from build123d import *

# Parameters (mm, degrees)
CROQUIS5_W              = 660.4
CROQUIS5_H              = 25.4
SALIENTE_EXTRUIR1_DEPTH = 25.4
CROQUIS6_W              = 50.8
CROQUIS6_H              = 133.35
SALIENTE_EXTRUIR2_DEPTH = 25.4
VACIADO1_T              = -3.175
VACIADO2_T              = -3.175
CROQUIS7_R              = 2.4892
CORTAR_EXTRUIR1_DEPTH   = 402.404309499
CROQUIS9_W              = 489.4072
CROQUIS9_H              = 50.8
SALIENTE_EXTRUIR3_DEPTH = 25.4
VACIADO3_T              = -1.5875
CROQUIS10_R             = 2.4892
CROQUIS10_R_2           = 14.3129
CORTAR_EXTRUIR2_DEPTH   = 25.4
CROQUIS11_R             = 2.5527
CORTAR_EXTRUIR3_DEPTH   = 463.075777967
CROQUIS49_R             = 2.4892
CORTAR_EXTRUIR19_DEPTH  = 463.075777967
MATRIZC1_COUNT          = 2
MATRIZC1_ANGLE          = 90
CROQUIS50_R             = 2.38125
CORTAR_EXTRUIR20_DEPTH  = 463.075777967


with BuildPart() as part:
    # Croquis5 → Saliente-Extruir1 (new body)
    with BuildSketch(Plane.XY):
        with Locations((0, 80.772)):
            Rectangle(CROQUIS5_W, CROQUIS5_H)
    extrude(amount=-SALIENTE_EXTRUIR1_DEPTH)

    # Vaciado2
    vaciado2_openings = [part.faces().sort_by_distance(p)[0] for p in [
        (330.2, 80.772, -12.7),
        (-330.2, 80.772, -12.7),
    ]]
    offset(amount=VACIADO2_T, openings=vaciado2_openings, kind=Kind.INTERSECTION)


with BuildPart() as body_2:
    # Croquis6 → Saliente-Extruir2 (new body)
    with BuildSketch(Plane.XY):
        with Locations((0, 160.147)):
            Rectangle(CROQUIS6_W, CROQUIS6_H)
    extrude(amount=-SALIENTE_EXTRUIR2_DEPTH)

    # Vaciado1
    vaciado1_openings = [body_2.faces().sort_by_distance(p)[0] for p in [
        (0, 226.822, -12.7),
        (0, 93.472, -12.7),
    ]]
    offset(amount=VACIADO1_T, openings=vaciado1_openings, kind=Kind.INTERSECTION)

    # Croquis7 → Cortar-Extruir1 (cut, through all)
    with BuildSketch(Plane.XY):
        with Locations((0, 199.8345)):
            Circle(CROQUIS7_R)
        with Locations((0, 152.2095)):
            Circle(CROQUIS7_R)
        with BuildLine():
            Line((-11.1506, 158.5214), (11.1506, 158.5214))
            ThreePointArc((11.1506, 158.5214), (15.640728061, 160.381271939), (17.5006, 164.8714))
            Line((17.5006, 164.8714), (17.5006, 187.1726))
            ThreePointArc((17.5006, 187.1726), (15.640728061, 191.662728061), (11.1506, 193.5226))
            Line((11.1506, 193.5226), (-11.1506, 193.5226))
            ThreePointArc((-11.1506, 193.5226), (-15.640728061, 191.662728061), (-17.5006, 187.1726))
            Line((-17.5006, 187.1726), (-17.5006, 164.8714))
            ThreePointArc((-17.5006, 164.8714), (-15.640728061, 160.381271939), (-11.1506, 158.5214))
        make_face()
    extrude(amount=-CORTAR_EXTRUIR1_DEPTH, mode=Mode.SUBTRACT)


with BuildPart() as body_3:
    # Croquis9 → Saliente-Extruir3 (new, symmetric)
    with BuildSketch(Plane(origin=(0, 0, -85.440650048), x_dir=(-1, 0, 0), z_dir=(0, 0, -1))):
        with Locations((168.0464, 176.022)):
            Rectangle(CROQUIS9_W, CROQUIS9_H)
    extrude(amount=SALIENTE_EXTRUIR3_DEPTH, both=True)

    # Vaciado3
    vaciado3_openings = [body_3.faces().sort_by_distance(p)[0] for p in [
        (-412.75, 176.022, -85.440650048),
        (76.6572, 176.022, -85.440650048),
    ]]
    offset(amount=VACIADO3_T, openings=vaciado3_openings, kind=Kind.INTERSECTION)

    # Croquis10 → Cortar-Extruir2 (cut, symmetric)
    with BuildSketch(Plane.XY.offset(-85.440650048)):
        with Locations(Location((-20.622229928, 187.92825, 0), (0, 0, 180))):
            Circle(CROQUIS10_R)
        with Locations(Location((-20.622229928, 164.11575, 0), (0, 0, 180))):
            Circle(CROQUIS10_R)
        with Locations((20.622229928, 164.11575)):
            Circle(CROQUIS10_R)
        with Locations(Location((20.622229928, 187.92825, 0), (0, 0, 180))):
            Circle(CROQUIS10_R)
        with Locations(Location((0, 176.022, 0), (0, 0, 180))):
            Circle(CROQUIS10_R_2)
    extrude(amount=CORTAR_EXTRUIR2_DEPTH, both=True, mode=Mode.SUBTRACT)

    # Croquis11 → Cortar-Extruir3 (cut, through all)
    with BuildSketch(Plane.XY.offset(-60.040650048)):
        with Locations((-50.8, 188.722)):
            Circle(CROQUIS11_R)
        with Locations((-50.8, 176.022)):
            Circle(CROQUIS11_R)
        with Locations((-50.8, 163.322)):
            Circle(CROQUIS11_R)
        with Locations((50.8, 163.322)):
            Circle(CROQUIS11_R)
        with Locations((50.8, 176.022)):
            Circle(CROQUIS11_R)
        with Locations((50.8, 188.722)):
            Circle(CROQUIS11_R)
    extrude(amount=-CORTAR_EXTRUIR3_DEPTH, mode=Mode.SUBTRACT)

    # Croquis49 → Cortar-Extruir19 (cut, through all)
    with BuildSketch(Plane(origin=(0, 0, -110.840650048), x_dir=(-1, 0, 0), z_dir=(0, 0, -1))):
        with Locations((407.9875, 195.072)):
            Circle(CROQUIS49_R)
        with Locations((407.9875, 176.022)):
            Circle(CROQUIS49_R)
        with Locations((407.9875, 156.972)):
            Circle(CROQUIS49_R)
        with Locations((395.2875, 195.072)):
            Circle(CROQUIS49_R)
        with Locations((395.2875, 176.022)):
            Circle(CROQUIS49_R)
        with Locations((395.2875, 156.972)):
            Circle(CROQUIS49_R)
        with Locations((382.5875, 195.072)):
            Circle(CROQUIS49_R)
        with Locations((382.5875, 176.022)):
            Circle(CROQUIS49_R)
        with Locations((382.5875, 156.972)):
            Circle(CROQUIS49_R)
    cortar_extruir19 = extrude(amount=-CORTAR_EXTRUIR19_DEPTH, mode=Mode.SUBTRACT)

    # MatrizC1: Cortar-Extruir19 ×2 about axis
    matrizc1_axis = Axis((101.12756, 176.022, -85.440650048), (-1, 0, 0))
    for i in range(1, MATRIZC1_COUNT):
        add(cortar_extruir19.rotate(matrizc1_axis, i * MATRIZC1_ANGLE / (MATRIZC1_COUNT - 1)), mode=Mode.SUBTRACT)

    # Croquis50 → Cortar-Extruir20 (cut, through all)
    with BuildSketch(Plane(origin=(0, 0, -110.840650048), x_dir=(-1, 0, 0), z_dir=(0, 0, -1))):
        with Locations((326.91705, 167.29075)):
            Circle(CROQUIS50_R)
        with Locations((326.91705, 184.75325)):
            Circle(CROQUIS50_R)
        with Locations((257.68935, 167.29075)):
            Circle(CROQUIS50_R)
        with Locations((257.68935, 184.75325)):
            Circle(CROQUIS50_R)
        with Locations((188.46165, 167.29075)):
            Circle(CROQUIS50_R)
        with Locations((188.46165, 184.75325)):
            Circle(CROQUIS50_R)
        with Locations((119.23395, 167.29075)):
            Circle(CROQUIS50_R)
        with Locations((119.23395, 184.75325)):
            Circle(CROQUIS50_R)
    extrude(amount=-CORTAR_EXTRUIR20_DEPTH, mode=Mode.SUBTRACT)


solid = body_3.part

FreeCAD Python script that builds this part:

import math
import FreeCAD as App
import Part
import Sketcher
from FreeCAD import Vector
Q = App.Units.Quantity


def faces_at(feature, points):
    """Names of the faces that lie closest to the given points."""
    faces = feature.Shape.Faces
    near = lambda p: min(range(len(faces)), key=lambda i: faces[i].distToShape(Part.Vertex(*p))[0])
    return sorted({f"Face{near(p) + 1}" for p in points})


def add_polygon(sketch, points):
    """Adds a closed chain of lines whose ends are joined by coincident constraints."""
    first, n = sketch.GeometryCount, len(points)
    for a, b in zip(points, points[1:] + points[:1]):
        sketch.addGeometry(Part.LineSegment(App.Vector(*a, 0), App.Vector(*b, 0)), False)
    for i in range(n):
        sketch.addConstraint(Sketcher.Constraint("Coincident", first + i, 2, first + (i + 1) % n, 1))

doc = App.newDocument("Part")
body = doc.addObject("PartDesign::Body", "Body")

sketch1 = doc.addObject("Sketcher::SketchObject", "Sketch")
body.addObject(sketch1)
sketch1.AttachmentSupport = (doc.XY_Plane, [""])
sketch1.MapMode = "FlatFace"
add_polygon(sketch1, [(-330.2, 93.472), (-330.2, 68.072), (330.2, 68.072), (330.2, 93.472)])
sketch1.addConstraint([
    Sketcher.Constraint("Vertical", 0),
    Sketcher.Constraint("Horizontal", 1),
    Sketcher.Constraint("Vertical", 2),
    Sketcher.Constraint("Horizontal", 3),
    Sketcher.Constraint("DistanceX", 1, 1, 1, 2, Q("26 in")),
    Sketcher.Constraint("DistanceY", 0, 2, 0, 1, Q("1 in")),
    Sketcher.Constraint("DistanceX", 0, 2, -1, 1, Q("13 in")),
    Sketcher.Constraint("DistanceY", -1, 1, 0, 2, Q("2.68 in")),
])
pad1 = doc.addObject("PartDesign::Pad", "Pad")
body.addObject(pad1)
pad1.Profile = sketch1
pad1.Length = Q("1 in")
pad1.Reversed = True
doc.recompute()

thickness = doc.addObject("PartDesign::Thickness", "Thickness")
body.addObject(thickness)
thickness.Base = (pad1, faces_at(pad1, [(330.2, 80.772, -12.7), (-330.2, 80.772, -12.7)]))
thickness.Value = Q("0.125 in")
thickness.Reversed = True
thickness.Join = "Intersection"
body2 = doc.addObject("PartDesign::Body", "Body001")

sketch2 = doc.addObject("Sketcher::SketchObject", "Sketch001")
body2.addObject(sketch2)
sketch2.AttachmentSupport = (doc.getObject("XY_Plane001"), [""])
sketch2.MapMode = "FlatFace"
add_polygon(sketch2, [(-25.4, 226.822), (-25.4, 93.472), (25.4, 93.472), (25.4, 226.822)])
sketch2.addConstraint([
    Sketcher.Constraint("Vertical", 0),
    Sketcher.Constraint("Horizontal", 1),
    Sketcher.Constraint("Vertical", 2),
    Sketcher.Constraint("Horizontal", 3),
    Sketcher.Constraint("DistanceX", 1, 1, 1, 2, Q("2 in")),
    Sketcher.Constraint("DistanceX", 0, 2, -1, 1, Q("1 in")),
    Sketcher.Constraint("DistanceY", 0, 2, 0, 1, Q("5.25 in")),
    Sketcher.Constraint("DistanceY", -1, 1, 0, 2, Q("3.68 in")),
])
pad2 = doc.addObject("PartDesign::Pad", "Pad001")
body2.addObject(pad2)
pad2.Profile = sketch2
pad2.Length = Q("1 in")
pad2.Reversed = True
doc.recompute()

thickness2 = doc.addObject("PartDesign::Thickness", "Thickness001")
body2.addObject(thickness2)
thickness2.Base = (pad2, faces_at(pad2, [(0, 226.822, -12.7), (0, 93.472, -12.7)]))
thickness2.Value = Q("0.125 in")
thickness2.Reversed = True
thickness2.Join = "Intersection"

sketch3 = doc.addObject("Sketcher::SketchObject", "Sketch002")
body2.addObject(sketch3)
sketch3.AttachmentSupport = (doc.getObject("XY_Plane001"), [""])
sketch3.MapMode = "FlatFace"
sketch3.addGeometry([
    Part.Circle(Vector(0, 199.8345, 0), Vector(0, 0, 1), 2.4892),
    Part.Circle(Vector(0, 152.2095, 0), Vector(0, 0, 1), 2.4892),
    Part.LineSegment(Vector(-11.1506, 158.5214, 0), Vector(11.1506, 158.5214, 0)),
    Part.ArcOfCircle(Part.Circle(Vector(11.1506, 164.8714, 0), Vector(0, 0, 1), 6.35), math.radians(-90), math.radians(0)),
    Part.LineSegment(Vector(17.5006, 164.8714, 0), Vector(17.5006, 187.1726, 0)),
    Part.ArcOfCircle(Part.Circle(Vector(11.1506, 187.1726, 0), Vector(0, 0, 1), 6.35), math.radians(0), math.radians(90)),
    Part.LineSegment(Vector(11.1506, 193.5226, 0), Vector(-11.1506, 193.5226, 0)),
    Part.ArcOfCircle(Part.Circle(Vector(-11.1506, 187.1726, 0), Vector(0, 0, 1), 6.35), math.radians(90), math.radians(180)),
    Part.LineSegment(Vector(-17.5006, 187.1726, 0), Vector(-17.5006, 164.8714, 0)),
    Part.ArcOfCircle(Part.Circle(Vector(-11.1506, 164.8714, 0), Vector(0, 0, 1), 6.35), math.radians(180), math.radians(270)),
], False)
sketch3.addConstraint([
    Sketcher.Constraint("Tangent", 2, 2, 3, 1),
    Sketcher.Constraint("Tangent", 3, 2, 4, 1),
    Sketcher.Constraint("Tangent", 4, 2, 5, 1),
    Sketcher.Constraint("Tangent", 5, 2, 6, 1),
    Sketcher.Constraint("Tangent", 6, 2, 7, 1),
    Sketcher.Constraint("Tangent", 7, 2, 8, 1),
    Sketcher.Constraint("Tangent", 8, 2, 9, 1),
    Sketcher.Constraint("Tangent", 9, 2, 2, 1),
    Sketcher.Constraint("Horizontal", 2),
    Sketcher.Constraint("Vertical", 4),
    Sketcher.Constraint("Horizontal", 6),
    Sketcher.Constraint("Vertical", 8),
    Sketcher.Constraint("Equal", 0, 1),
    Sketcher.Constraint("Equal", 3, 5),
    Sketcher.Constraint("Equal", 5, 7),
    Sketcher.Constraint("Equal", 7, 9),
    Sketcher.Constraint("PointOnObject", 0, 3, -2),
    Sketcher.Constraint("PointOnObject", 1, 3, -2),
    Sketcher.Constraint("Equal", 6, 4),
    Sketcher.Constraint("Radius", 3, Q("0.25 in")),
    Sketcher.Constraint("Diameter", 0, Q("0.196 in")),
    Sketcher.Constraint("DistanceX", 2, 1, 2, 2, Q("0.878 in")),
    Sketcher.Constraint("DistanceX", -1, 1, 3, 3, Q("0.439 in")),
    Sketcher.Constraint("DistanceY", -1, 1, 3, 3, Q("6.491 in")),
    Sketcher.Constraint("DistanceY", 1, 3, 0, 3, Q("1.875 in")),
    Sketcher.Constraint("DistanceY", -1, 1, 0, 3, Q("7.8675 in")),
])
pocket1 = doc.addObject("PartDesign::Pocket", "Pocket")
body2.addObject(pocket1)
pocket1.Profile = sketch3
pocket1.Type = "ThroughAll"
body3 = doc.addObject("PartDesign::Body", "Body002")

sketch4 = doc.addObject("Sketcher::SketchObject", "Sketch003")
body3.addObject(sketch4)
sketch4.AttachmentSupport = (doc.getObject("XY_Plane002"), [""])
sketch4.MapMode = "FlatFace"
sketch4.AttachmentOffset = App.Placement(Vector(0, 0, -85.44065), App.Rotation())
add_polygon(sketch4, [(76.6572, 201.422), (76.6572, 150.622), (-412.75, 150.622), (-412.75, 201.422)])
sketch4.addConstraint([
    Sketcher.Constraint("Vertical", 0),
    Sketcher.Constraint("Horizontal", 1),
    Sketcher.Constraint("Vertical", 2),
    Sketcher.Constraint("Horizontal", 3),
    Sketcher.Constraint("DistanceY", 0, 2, 0, 1, Q("2 in")),
    Sketcher.Constraint("DistanceX", 1, 2, 1, 1, Q("19.268 in")),
    Sketcher.Constraint("DistanceY", -1, 1, 0, 2, Q("5.93 in")),
    Sketcher.Constraint("DistanceX", 1, 2, -1, 1, Q("16.25 in")),
])
pad3 = doc.addObject("PartDesign::Pad", "Pad002")
body3.addObject(pad3)
pad3.Profile = sketch4
pad3.Length = Q("2 in")
pad3.Midplane = True
doc.recompute()

thickness3 = doc.addObject("PartDesign::Thickness", "Thickness002")
body3.addObject(thickness3)
thickness3.Base = (pad3, faces_at(pad3, [(-412.75, 176.022, -85.441), (76.657, 176.022, -85.441)]))
thickness3.Value = Q("0.0625 in")
thickness3.Reversed = True
thickness3.Join = "Intersection"

sketch5 = doc.addObject("Sketcher::SketchObject", "Sketch004")
body3.addObject(sketch5)
sketch5.AttachmentSupport = (doc.getObject("XY_Plane002"), [""])
sketch5.MapMode = "FlatFace"
sketch5.AttachmentOffset = App.Placement(Vector(0, 0, -85.44065), App.Rotation())
sketch5.addGeometry([
    Part.Circle(Vector(-20.62223, 187.92825, 0), Vector(0, 0, 1), 2.4892),
    Part.Circle(Vector(-20.62223, 164.11575, 0), Vector(0, 0, 1), 2.4892),
    Part.Circle(Vector(20.62223, 164.11575, 0), Vector(0, 0, 1), 2.4892),
    Part.Circle(Vector(20.62223, 187.92825, 0), Vector(0, 0, 1), 2.4892),
    Part.Circle(Vector(0, 176.022, 0), Vector(0, 0, 1), 14.3129),
], False)
sketch5.addConstraint([
    Sketcher.Constraint("Equal", 0, 1),
    Sketcher.Constraint("Equal", 1, 2),
    Sketcher.Constraint("Equal", 2, 3),
    Sketcher.Constraint("Symmetric", 1, 3, 2, 3, -2),
    Sketcher.Constraint("Symmetric", 0, 3, 3, 3, -2),
    Sketcher.Constraint("PointOnObject", 4, 3, -2),
    Sketcher.Constraint("Vertical", 0, 3, 1, 3),
    Sketcher.Constraint("Diameter", 0, Q("0.196 in")),
    Sketcher.Constraint("Diameter", 4, Q("1.127 in")),
    Sketcher.Constraint("DistanceY", -1, 1, 4, 3, Q("6.93 in")),
    Sketcher.Constraint("DistanceY", 1, 3, 0, 3, Q("0.9375 in")),
    Sketcher.Constraint("DistanceY", 4, 3, 0, 3, Q("0.46875 in")),
    Sketcher.Constraint("DistanceX", 0, 3, -1, 1, Q("20.62223 mm")),
])
pocket2 = doc.addObject("PartDesign::Pocket", "Pocket001")
body3.addObject(pocket2)
pocket2.Profile = sketch5
pocket2.Length = Q("2 in")
pocket2.Midplane = True

sketch6 = doc.addObject("Sketcher::SketchObject", "Sketch005")
body3.addObject(sketch6)
sketch6.AttachmentSupport = (doc.getObject("XY_Plane002"), [""])
sketch6.MapMode = "FlatFace"
sketch6.AttachmentOffset = App.Placement(Vector(0, 0, -60.04065), App.Rotation())
sketch6.addGeometry([
    Part.Circle(Vector(-50.8, 188.722, 0), Vector(0, 0, 1), 2.5527),
    Part.Circle(Vector(-50.8, 176.022, 0), Vector(0, 0, 1), 2.5527),
    Part.Circle(Vector(-50.8, 163.322, 0), Vector(0, 0, 1), 2.5527),
    Part.Circle(Vector(50.8, 163.322, 0), Vector(0, 0, 1), 2.5527),
    Part.Circle(Vector(50.8, 176.022, 0), Vector(0, 0, 1), 2.5527),
    Part.Circle(Vector(50.8, 188.722, 0), Vector(0, 0, 1), 2.5527),
], False)
sketch6.addConstraint([
    Sketcher.Constraint("Equal", 0, 1),
    Sketcher.Constraint("Equal", 1, 2),
    Sketcher.Constraint("Equal", 2, 3),
    Sketcher.Constraint("Equal", 3, 4),
    Sketcher.Constraint("Equal", 4, 5),
    Sketcher.Constraint("Symmetric", 2, 3, 3, 3, -2),
    Sketcher.Constraint("Symmetric", 1, 3, 4, 3, -2),
    Sketcher.Constraint("Symmetric", 0, 3, 5, 3, -2),
    Sketcher.Constraint("Vertical", 0, 3, 1, 3),
    Sketcher.Constraint("Vertical", 1, 3, 2, 3),
    Sketcher.Constraint("Diameter", 0, Q("0.201 in")),
    Sketcher.Constraint("DistanceX", 0, 3, -1, 1, Q("2 in")),
    Sketcher.Constraint("DistanceY", 2, 3, 0, 3, Q("1 in")),
    Sketcher.Constraint("DistanceY", 1, 3, 0, 3, Q("0.5 in")),
    Sketcher.Constraint("DistanceY", -1, 1, 0, 3, Q("7.43 in")),
])
pocket3 = doc.addObject("PartDesign::Pocket", "Pocket002")
body3.addObject(pocket3)
pocket3.Profile = sketch6
pocket3.Type = "ThroughAll"

sketch7 = doc.addObject("Sketcher::SketchObject", "Sketch006")
body3.addObject(sketch7)
sketch7.AttachmentSupport = (doc.getObject("XY_Plane002"), [""])
sketch7.MapMode = "FlatFace"
sketch7.AttachmentOffset = App.Placement(Vector(0, 0, -110.84065), App.Rotation())
sketch7.addGeometry([
    Part.Circle(Vector(-407.9875, 195.072, 0), Vector(0, 0, 1), 2.4892),
    Part.Circle(Vector(-407.9875, 176.022, 0), Vector(0, 0, 1), 2.4892),
    Part.Circle(Vector(-407.9875, 156.972, 0), Vector(0, 0, 1), 2.4892),
    Part.Circle(Vector(-395.2875, 195.072, 0), Vector(0, 0, 1), 2.4892),
    Part.Circle(Vector(-395.2875, 176.022, 0), Vector(0, 0, 1), 2.4892),
    Part.Circle(Vector(-395.2875, 156.972, 0), Vector(0, 0, 1), 2.4892),
    Part.Circle(Vector(-382.5875, 195.072, 0), Vector(0, 0, 1), 2.4892),
    Part.Circle(Vector(-382.5875, 176.022, 0), Vector(0, 0, 1), 2.4892),
    Part.Circle(Vector(-382.5875, 156.972, 0), Vector(0, 0, 1), 2.4892),
], False)
sketch7.addConstraint([
    Sketcher.Constraint("Equal", 0, 1),
    Sketcher.Constraint("Equal", 1, 2),
    Sketcher.Constraint("Equal", 2, 3),
    Sketcher.Constraint("Equal", 3, 4),
    Sketcher.Constraint("Equal", 4, 5),
    Sketcher.Constraint("Equal", 5, 6),
    Sketcher.Constraint("Equal", 6, 7),
    Sketcher.Constraint("Equal", 7, 8),
    Sketcher.Constraint("Horizontal", 0, 3, 3, 3),
    Sketcher.Constraint("Horizontal", 1, 3, 4, 3),
    Sketcher.Constraint("Horizontal", 2, 3, 5, 3),
    Sketcher.Constraint("Horizontal", 3, 3, 6, 3),
    Sketcher.Constraint("Horizontal", 4, 3, 7, 3),
    Sketcher.Constraint("Horizontal", 5, 3, 8, 3),
    Sketcher.Constraint("Vertical", 0, 3, 1, 3),
    Sketcher.Constraint("Vertical", 1, 3, 2, 3),
    Sketcher.Constraint("Vertical", 3, 3, 4, 3),
    Sketcher.Constraint("Vertical", 4, 3, 5, 3),
    Sketcher.Constraint("Vertical", 6, 3, 7, 3),
    Sketcher.Constraint("Vertical", 7, 3, 8, 3),
    Sketcher.Constraint("Diameter", 0, Q("0.196 in")),
    Sketcher.Constraint("DistanceX", 0, 3, 6, 3, Q("1 in")),
    Sketcher.Constraint("DistanceY", 2, 3, 0, 3, Q("1.5 in")),
    Sketcher.Constraint("DistanceX", 0, 3, 3, 3, Q("0.5 in")),
    Sketcher.Constraint("DistanceY", -1, 1, 0, 3, Q("7.68 in")),
    Sketcher.Constraint("DistanceY", -1, 1, 1, 3, Q("6.93 in")),
    Sketcher.Constraint("DistanceX", 0, 3, -1, 1, Q("16.0625 in")),
])
pocket4 = doc.addObject("PartDesign::Pocket", "Pocket003")
body3.addObject(pocket4)
pocket4.Profile = sketch7
pocket4.Type = "ThroughAll"
pocket4.Reversed = True
doc.recompute()

datumline = doc.addObject("PartDesign::Line", "DatumLine")
body3.addObject(datumline)
datumline.Placement = App.Placement(Vector(0, 176.022, -85.44065), App.Rotation(Vector(0, 0, 1), Vector(-1, 0, 0)))
polarpattern = doc.addObject("PartDesign::PolarPattern", "PolarPattern")
body3.addObject(polarpattern)
polarpattern.Originals = [pocket4]
polarpattern.Axis = (datumline, [""])
polarpattern.Angle = 90
polarpattern.Occurrences = 2
body3.Tip = polarpattern

sketch8 = doc.addObject("Sketcher::SketchObject", "Sketch007")
body3.addObject(sketch8)
sketch8.AttachmentSupport = (doc.getObject("XY_Plane002"), [""])
sketch8.MapMode = "FlatFace"
sketch8.AttachmentOffset = App.Placement(Vector(0, 0, -110.84065), App.Rotation())
sketch8.addGeometry([
    Part.Circle(Vector(-326.91705, 167.29075, 0), Vector(0, 0, 1), 2.38125),
    Part.Circle(Vector(-326.91705, 184.75325, 0), Vector(0, 0, 1), 2.38125),
    Part.Circle(Vector(-257.68935, 167.29075, 0), Vector(0, 0, 1), 2.38125),
    Part.Circle(Vector(-257.68935, 184.75325, 0), Vector(0, 0, 1), 2.38125),
    Part.Circle(Vector(-188.46165, 167.29075, 0), Vector(0, 0, 1), 2.38125),
    Part.Circle(Vector(-188.46165, 184.75325, 0), Vector(0, 0, 1), 2.38125),
    Part.Circle(Vector(-119.23395, 167.29075, 0), Vector(0, 0, 1), 2.38125),
    Part.Circle(Vector(-119.23395, 184.75325, 0), Vector(0, 0, 1), 2.38125),
], False)
sketch8.addConstraint([
    Sketcher.Constraint("Equal", 0, 1),
    Sketcher.Constraint("Equal", 1, 2),
    Sketcher.Constraint("Equal", 2, 3),
    Sketcher.Constraint("Equal", 3, 4),
    Sketcher.Constraint("Equal", 4, 5),
    Sketcher.Constraint("Equal", 5, 6),
    Sketcher.Constraint("Equal", 6, 7),
    Sketcher.Constraint("Horizontal", 0, 3, 2, 3),
    Sketcher.Constraint("Horizontal", 1, 3, 3, 3),
    Sketcher.Constraint("Horizontal", 2, 3, 4, 3),
    Sketcher.Constraint("Horizontal", 3, 3, 5, 3),
    Sketcher.Constraint("Horizontal", 4, 3, 6, 3),
    Sketcher.Constraint("Horizontal", 5, 3, 7, 3),
    Sketcher.Constraint("Vertical", 0, 3, 1, 3),
    Sketcher.Constraint("Vertical", 2, 3, 3, 3),
    Sketcher.Constraint("Vertical", 4, 3, 5, 3),
    Sketcher.Constraint("Vertical", 6, 3, 7, 3),
    Sketcher.Constraint("Diameter", 0, Q("0.1875 in")),
    Sketcher.Constraint("DistanceY", 0, 3, 1, 3, Q("0.6875 in")),
    Sketcher.Constraint("DistanceX", 0, 3, 4, 3, Q("5.451 in")),
    Sketcher.Constraint("DistanceX", 2, 3, 6, 3, Q("5.451 in")),
    Sketcher.Constraint("DistanceX", 0, 3, 2, 3, Q("2.7255 in")),
    Sketcher.Constraint("DistanceX", 0, 3, -1, 1, Q("326.91705 mm")),
    Sketcher.Constraint("DistanceY", -1, 1, 0, 3, Q("167.29075 mm")),
])
pocket5 = doc.addObject("PartDesign::Pocket", "Pocket004")
body3.addObject(pocket5)
pocket5.Profile = sketch8
pocket5.Type = "ThroughAll"
pocket5.Reversed = True
body.Visibility = False
body2.Visibility = False

doc.recompute()
